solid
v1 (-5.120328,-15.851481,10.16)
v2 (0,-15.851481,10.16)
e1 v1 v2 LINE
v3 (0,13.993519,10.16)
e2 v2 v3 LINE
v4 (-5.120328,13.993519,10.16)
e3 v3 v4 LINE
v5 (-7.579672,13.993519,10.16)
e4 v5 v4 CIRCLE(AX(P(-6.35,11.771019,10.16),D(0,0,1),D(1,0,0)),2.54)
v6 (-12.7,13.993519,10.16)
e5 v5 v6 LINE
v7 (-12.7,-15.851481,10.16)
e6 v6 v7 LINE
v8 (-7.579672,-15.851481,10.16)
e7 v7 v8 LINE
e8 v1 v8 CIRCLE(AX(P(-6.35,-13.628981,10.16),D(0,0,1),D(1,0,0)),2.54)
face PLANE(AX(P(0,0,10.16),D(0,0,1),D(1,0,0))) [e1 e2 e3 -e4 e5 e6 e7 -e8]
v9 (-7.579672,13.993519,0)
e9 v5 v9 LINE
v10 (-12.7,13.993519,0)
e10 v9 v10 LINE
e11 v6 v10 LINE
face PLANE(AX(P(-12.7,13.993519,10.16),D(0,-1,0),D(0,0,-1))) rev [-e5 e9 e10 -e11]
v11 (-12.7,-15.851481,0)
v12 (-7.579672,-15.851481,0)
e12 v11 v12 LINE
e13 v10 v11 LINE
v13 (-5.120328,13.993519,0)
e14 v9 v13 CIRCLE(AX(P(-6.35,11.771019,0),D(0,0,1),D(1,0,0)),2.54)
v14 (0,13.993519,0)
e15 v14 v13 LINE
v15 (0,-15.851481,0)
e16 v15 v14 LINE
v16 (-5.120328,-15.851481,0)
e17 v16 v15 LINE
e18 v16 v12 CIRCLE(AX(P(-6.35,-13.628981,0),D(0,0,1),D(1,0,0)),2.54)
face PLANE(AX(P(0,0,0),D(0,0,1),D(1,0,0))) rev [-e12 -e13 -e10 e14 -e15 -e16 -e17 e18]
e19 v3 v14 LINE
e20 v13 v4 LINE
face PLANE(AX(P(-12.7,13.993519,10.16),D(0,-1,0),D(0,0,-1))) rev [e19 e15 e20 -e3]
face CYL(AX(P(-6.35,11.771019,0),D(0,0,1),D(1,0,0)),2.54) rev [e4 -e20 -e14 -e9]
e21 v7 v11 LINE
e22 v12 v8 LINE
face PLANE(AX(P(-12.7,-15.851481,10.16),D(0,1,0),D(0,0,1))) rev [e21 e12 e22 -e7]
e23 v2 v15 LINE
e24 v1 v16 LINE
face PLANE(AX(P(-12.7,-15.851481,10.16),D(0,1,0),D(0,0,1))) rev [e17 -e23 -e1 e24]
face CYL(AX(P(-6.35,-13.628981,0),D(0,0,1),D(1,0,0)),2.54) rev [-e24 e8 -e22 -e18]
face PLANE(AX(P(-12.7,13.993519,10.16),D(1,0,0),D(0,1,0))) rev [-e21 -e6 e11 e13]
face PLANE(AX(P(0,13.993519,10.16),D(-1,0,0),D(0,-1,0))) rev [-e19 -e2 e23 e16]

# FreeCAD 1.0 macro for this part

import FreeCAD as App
import Part
import Sketcher
from FreeCAD import Vector
Q = App.Units.Quantity


def add_polygon(sketch, points):
    """Adds a closed chain of lines whose ends are joined by coincident constraints."""
    first, n = sketch.GeometryCount, len(points)
    for a, b in zip(points, points[1:] + points[:1]):
        sketch.addGeometry(Part.LineSegment(App.Vector(*a, 0), App.Vector(*b, 0)), False)
    for i in range(n):
        sketch.addConstraint(Sketcher.Constraint("Coincident", first + i, 2, first + (i + 1) % n, 1))

doc = App.newDocument("Part")
body = doc.addObject("PartDesign::Body", "Body")

# Sketch on XY plane
sketch1 = doc.addObject("Sketcher::SketchObject", "Sketch")
body.addObject(sketch1)
sketch1.AttachmentSupport = (doc.XY_Plane, [""])
sketch1.MapMode = "FlatFace"
add_polygon(sketch1, [(-12.7, 13.993519), (-12.7, -15.851481), (0, -15.851481), (0, 13.993519)])  # lines 0-3
sketch1.addConstraint([
    Sketcher.Constraint("Vertical", 0),
    Sketcher.Constraint("Horizontal", 1),
    Sketcher.Constraint("Vertical", 2),
    Sketcher.Constraint("Horizontal", 3),
    Sketcher.Constraint("PointOnObject", 1, 2, -2),
    Sketcher.Constraint("DistanceX", 1, 1, 1, 2, Q("0.5 in")),
    Sketcher.Constraint("DistanceY", 0, 2, 0, 1, Q("1.175 in")),
    Sketcher.Constraint("DistanceY", 0, 2, -1, 1, 15.851481),
])
pad1 = doc.addObject("PartDesign::Pad", "Pad")
body.addObject(pad1)
pad1.Profile = sketch1
pad1.Length = Q("0.4 in")

# Sketch on XY plane
sketch2 = doc.addObject("Sketcher::SketchObject", "Sketch001")
body.addObject(sketch2)
sketch2.AttachmentSupport = (doc.XY_Plane, [""])
sketch2.MapMode = "FlatFace"
sketch2.AttachmentOffset = App.Placement(Vector(0, 0, 0.4 * 25.4), App.Rotation())
sketch2.addGeometry([
    Part.Circle(Vector(-6.35, 11.771019, 0), Vector(0, 0, 1), 2.54),
    Part.Circle(Vector(-6.35, -13.628981, 0), Vector(0, 0, 1), 2.54),
], False)
sketch2.addConstraint([
    Sketcher.Constraint("Equal", 0, 1),
    Sketcher.Constraint("Vertical", 0, 3, 1, 3),
    Sketcher.Constraint("Diameter", 0, Q("0.2 in")),
    Sketcher.Constraint("DistanceY", 1, 3, 0, 3, Q("1 in")),
    Sketcher.Constraint("DistanceX", 0, 3, -1, 1, Q("0.25 in")),
    Sketcher.Constraint("DistanceY", -1, 1, 0, 3, 11.771019),
])
pocket1 = doc.addObject("PartDesign::Pocket", "Pocket")
body.addObject(pocket1)
pocket1.Profile = sketch2
pocket1.Length = Q("0.4 in")

doc.recompute()
